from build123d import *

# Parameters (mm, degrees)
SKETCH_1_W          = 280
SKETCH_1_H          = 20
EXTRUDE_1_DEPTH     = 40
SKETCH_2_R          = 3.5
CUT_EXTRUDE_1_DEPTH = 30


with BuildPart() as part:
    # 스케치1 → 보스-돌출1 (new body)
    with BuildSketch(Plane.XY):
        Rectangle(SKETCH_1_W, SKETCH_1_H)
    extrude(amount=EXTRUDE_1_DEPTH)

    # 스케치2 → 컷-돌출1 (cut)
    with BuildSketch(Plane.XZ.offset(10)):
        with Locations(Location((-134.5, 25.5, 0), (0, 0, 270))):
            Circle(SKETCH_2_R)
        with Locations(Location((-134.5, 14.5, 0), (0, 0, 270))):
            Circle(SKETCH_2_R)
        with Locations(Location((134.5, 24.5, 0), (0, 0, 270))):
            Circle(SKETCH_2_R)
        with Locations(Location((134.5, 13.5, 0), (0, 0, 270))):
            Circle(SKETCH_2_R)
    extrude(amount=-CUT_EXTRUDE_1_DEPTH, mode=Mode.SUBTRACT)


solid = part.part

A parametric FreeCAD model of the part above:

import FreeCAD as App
import Part
import Sketcher
from FreeCAD import Vector

doc = App.newDocument("Part")
body = doc.addObject("PartDesign::Body", "Body")

# Sketch on XY plane
sketch1 = body.newObject("Sketcher::SketchObject", "Sketch")
sketch1.AttachmentSupport = (doc.getObject("XY_Plane"), [""])
sketch1.MapMode = "FlatFace"
sketch1.addGeometry(Part.LineSegment(Vector(-140, 10, 0), Vector(-140, -10, 0)), False)
sketch1.addGeometry(Part.LineSegment(Vector(-140, -10, 0), Vector(140, -10, 0)), False)
sketch1.addGeometry(Part.LineSegment(Vector(140, -10, 0), Vector(140, 10, 0)), False)
sketch1.addGeometry(Part.LineSegment(Vector(140, 10, 0), Vector(-140, 10, 0)), False)
sketch1.addConstraint(Sketcher.Constraint("Coincident", 0, 2, 1, 1))
sketch1.addConstraint(Sketcher.Constraint("Coincident", 1, 2, 2, 1))
sketch1.addConstraint(Sketcher.Constraint("Coincident", 2, 2, 3, 1))
sketch1.addConstraint(Sketcher.Constraint("Coincident", 3, 2, 0, 1))
sketch1.addConstraint(Sketcher.Constraint("Vertical", 0))
sketch1.addConstraint(Sketcher.Constraint("Horizontal", 1))
sketch1.addConstraint(Sketcher.Constraint("Vertical", 2))
sketch1.addConstraint(Sketcher.Constraint("Horizontal", 3))
sketch1.addConstraint(Sketcher.Constraint("Symmetric", 0, 2, 2, 2, -1, 1))
sketch1.addConstraint(Sketcher.Constraint("DistanceX", 1, 1, 1, 2, 280.0))
sketch1.addConstraint(Sketcher.Constraint("DistanceY", 0, 2, 0, 1, 20.0))
pad1 = body.newObject("PartDesign::Pad", "Pad")
pad1.Profile = sketch1
pad1.Length = 40

# Sketch on XZ plane
sketch2 = body.newObject("Sketcher::SketchObject", "Sketch001")
sketch2.AttachmentSupport = (doc.getObject("XZ_Plane"), [""])
sketch2.MapMode = "FlatFace"
sketch2.AttachmentOffset = App.Placement(Vector(0, 0, 10), App.Rotation())
sketch2.addGeometry(Part.Circle(Vector(-134.5, 25.5, 0), Vector(0, 0, 1), 3.5), False)
sketch2.addGeometry(Part.Circle(Vector(-134.5, 14.5, 0), Vector(0, 0, 1), 3.5), False)
sketch2.addGeometry(Part.Circle(Vector(134.5, 24.5, 0), Vector(0, 0, 1), 3.5), False)
sketch2.addGeometry(Part.Circle(Vector(134.5, 13.5, 0), Vector(0, 0, 1), 3.5), False)
sketch2.addConstraint(Sketcher.Constraint("Equal", 0, 1))
sketch2.addConstraint(Sketcher.Constraint("Equal", 1, 2))
sketch2.addConstraint(Sketcher.Constraint("Equal", 2, 3))
sketch2.addConstraint(Sketcher.Constraint("Vertical", 0, 3, 1, 3))
sketch2.addConstraint(Sketcher.Constraint("Vertical", 2, 3, 3, 3))
sketch2.addConstraint(Sketcher.Constraint("Diameter", 0, 7.0))
sketch2.addConstraint(Sketcher.Constraint("DistanceY", 1, 3, 0, 3, 11.0))
sketch2.addConstraint(Sketcher.Constraint("DistanceX", 0, 3, 2, 3, 269.0))
sketch2.addConstraint(Sketcher.Constraint("DistanceY", 2, 3, 0, 3, 1.0))
sketch2.addConstraint(Sketcher.Constraint("DistanceY", 3, 3, 2, 3, 11.0))
sketch2.addConstraint(Sketcher.Constraint("DistanceX", 0, 3, -1, 1, 134.5))
sketch2.addConstraint(Sketcher.Constraint("DistanceY", -1, 1, 0, 3, 25.5))
pocket1 = body.newObject("PartDesign::Pocket", "Pocket")
pocket1.Profile = sketch2
pocket1.Length = 30

doc.recompute()
